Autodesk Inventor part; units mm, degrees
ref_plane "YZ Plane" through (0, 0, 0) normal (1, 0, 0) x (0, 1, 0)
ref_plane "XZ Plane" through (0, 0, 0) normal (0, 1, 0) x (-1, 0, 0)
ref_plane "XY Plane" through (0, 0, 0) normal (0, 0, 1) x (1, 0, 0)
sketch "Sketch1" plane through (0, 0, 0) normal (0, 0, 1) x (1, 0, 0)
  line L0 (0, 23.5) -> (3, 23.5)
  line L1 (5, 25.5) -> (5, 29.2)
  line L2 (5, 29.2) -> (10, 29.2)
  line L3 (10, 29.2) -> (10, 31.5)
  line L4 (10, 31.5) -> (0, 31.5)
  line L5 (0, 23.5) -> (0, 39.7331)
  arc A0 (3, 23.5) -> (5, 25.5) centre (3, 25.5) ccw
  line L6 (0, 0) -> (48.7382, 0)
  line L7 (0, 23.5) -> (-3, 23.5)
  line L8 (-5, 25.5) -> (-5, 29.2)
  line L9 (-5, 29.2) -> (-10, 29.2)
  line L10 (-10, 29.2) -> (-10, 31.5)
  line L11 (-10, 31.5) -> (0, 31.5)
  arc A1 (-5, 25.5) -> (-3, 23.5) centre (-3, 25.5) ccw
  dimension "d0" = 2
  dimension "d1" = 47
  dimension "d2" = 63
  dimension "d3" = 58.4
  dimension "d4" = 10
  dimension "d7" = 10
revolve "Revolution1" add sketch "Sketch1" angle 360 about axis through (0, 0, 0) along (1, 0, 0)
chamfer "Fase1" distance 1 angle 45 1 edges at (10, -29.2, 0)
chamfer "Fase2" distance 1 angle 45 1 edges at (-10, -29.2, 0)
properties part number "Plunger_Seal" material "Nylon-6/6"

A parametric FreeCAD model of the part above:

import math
import FreeCAD as App
import Part
import Sketcher
Q = App.Units.Quantity


def edges_at(feature, points):
    """Names of the edges that pass closest to the given points."""
    edges = feature.Shape.Edges
    near = lambda p: min(range(len(edges)), key=lambda i: edges[i].distToShape(Part.Vertex(*p))[0])
    return sorted({f"Edge{near(p) + 1}" for p in points})

doc = App.newDocument("Part")
body = doc.addObject("PartDesign::Body", "Body")

sketch1 = doc.addObject("Sketcher::SketchObject", "Sketch")
body.addObject(sketch1)
sketch1.AttachmentSupport = (doc.XY_Plane, [""])
sketch1.MapMode = "FlatFace"
sketch1.addGeometry([
    Part.LineSegment(App.Vector(10, 31.5, 0), App.Vector(-10, 31.5, 0)),
    Part.LineSegment(App.Vector(-10, 31.5, 0), App.Vector(-10, 29.2, 0)),
    Part.LineSegment(App.Vector(-10, 29.2, 0), App.Vector(-5, 29.2, 0)),
    Part.LineSegment(App.Vector(-5, 29.2, 0), App.Vector(-5, 25.5, 0)),
    Part.ArcOfCircle(Part.Circle(App.Vector(-3, 25.5, 0), App.Vector(0, 0, 1), 2), math.radians(180), math.radians(270)),
    Part.LineSegment(App.Vector(-3, 23.5, 0), App.Vector(3, 23.5, 0)),
    Part.ArcOfCircle(Part.Circle(App.Vector(3, 25.5, 0), App.Vector(0, 0, 1), 2), math.radians(-90), math.radians(0)),
    Part.LineSegment(App.Vector(5, 25.5, 0), App.Vector(5, 29.2, 0)),
    Part.LineSegment(App.Vector(5, 29.2, 0), App.Vector(10, 29.2, 0)),
    Part.LineSegment(App.Vector(10, 29.2, 0), App.Vector(10, 31.5, 0)),
], False)
sketch1.addConstraint([
    Sketcher.Constraint("Coincident", 0, 2, 1, 1),
    Sketcher.Constraint("Coincident", 1, 2, 2, 1),
    Sketcher.Constraint("Coincident", 2, 2, 3, 1),
    Sketcher.Constraint("Tangent", 3, 2, 4, 1),
    Sketcher.Constraint("Tangent", 4, 2, 5, 1),
    Sketcher.Constraint("Tangent", 5, 2, 6, 1),
    Sketcher.Constraint("Tangent", 6, 2, 7, 1),
    Sketcher.Constraint("Coincident", 7, 2, 8, 1),
    Sketcher.Constraint("Coincident", 8, 2, 9, 1),
    Sketcher.Constraint("Coincident", 9, 2, 0, 1),
    Sketcher.Constraint("Horizontal", 0),
    Sketcher.Constraint("Vertical", 1),
    Sketcher.Constraint("Horizontal", 2),
    Sketcher.Constraint("Vertical", 3),
    Sketcher.Constraint("Horizontal", 5),
    Sketcher.Constraint("Vertical", 7),
    Sketcher.Constraint("Horizontal", 8),
    Sketcher.Constraint("Vertical", 9),
    Sketcher.Constraint("Equal", 4, 6),
    Sketcher.Constraint("Symmetric", 2, 2, 7, 2, -2),
    Sketcher.Constraint("Equal", 2, 8),
    Sketcher.Constraint("Radius", 4, Q("2 mm")),
    Sketcher.Constraint("DistanceX", 0, 2, -1, 1, Q("10 mm")),
    Sketcher.Constraint("DistanceX", 3, 2, 6, 2, Q("10 mm")),
    Sketcher.Constraint("DistanceY", 1, 2, 1, 1, Q("2.3 mm")),
    Sketcher.Constraint("DistanceY", 3, 2, 3, 1, Q("3.7 mm")),
    Sketcher.Constraint("DistanceY", -1, 1, 4, 3, Q("25.5 mm")),
])
revolution = doc.addObject("PartDesign::Revolution", "Revolution")
body.addObject(revolution)
revolution.Profile = sketch1
revolution.ReferenceAxis = (sketch1, ["H_Axis"])
revolution.Angle = 360
doc.recompute()

chamfer = doc.addObject("PartDesign::Chamfer", "Chamfer")
body.addObject(chamfer)
chamfer.Base = (revolution, edges_at(revolution, [(10, -29.2, 0)]))
chamfer.Size = 1
doc.recompute()

chamfer2 = doc.addObject("PartDesign::Chamfer", "Chamfer001")
body.addObject(chamfer2)
chamfer2.Base = (chamfer, edges_at(chamfer, [(-10, -29.2, 0)]))
chamfer2.Size = 1

doc.recompute()
